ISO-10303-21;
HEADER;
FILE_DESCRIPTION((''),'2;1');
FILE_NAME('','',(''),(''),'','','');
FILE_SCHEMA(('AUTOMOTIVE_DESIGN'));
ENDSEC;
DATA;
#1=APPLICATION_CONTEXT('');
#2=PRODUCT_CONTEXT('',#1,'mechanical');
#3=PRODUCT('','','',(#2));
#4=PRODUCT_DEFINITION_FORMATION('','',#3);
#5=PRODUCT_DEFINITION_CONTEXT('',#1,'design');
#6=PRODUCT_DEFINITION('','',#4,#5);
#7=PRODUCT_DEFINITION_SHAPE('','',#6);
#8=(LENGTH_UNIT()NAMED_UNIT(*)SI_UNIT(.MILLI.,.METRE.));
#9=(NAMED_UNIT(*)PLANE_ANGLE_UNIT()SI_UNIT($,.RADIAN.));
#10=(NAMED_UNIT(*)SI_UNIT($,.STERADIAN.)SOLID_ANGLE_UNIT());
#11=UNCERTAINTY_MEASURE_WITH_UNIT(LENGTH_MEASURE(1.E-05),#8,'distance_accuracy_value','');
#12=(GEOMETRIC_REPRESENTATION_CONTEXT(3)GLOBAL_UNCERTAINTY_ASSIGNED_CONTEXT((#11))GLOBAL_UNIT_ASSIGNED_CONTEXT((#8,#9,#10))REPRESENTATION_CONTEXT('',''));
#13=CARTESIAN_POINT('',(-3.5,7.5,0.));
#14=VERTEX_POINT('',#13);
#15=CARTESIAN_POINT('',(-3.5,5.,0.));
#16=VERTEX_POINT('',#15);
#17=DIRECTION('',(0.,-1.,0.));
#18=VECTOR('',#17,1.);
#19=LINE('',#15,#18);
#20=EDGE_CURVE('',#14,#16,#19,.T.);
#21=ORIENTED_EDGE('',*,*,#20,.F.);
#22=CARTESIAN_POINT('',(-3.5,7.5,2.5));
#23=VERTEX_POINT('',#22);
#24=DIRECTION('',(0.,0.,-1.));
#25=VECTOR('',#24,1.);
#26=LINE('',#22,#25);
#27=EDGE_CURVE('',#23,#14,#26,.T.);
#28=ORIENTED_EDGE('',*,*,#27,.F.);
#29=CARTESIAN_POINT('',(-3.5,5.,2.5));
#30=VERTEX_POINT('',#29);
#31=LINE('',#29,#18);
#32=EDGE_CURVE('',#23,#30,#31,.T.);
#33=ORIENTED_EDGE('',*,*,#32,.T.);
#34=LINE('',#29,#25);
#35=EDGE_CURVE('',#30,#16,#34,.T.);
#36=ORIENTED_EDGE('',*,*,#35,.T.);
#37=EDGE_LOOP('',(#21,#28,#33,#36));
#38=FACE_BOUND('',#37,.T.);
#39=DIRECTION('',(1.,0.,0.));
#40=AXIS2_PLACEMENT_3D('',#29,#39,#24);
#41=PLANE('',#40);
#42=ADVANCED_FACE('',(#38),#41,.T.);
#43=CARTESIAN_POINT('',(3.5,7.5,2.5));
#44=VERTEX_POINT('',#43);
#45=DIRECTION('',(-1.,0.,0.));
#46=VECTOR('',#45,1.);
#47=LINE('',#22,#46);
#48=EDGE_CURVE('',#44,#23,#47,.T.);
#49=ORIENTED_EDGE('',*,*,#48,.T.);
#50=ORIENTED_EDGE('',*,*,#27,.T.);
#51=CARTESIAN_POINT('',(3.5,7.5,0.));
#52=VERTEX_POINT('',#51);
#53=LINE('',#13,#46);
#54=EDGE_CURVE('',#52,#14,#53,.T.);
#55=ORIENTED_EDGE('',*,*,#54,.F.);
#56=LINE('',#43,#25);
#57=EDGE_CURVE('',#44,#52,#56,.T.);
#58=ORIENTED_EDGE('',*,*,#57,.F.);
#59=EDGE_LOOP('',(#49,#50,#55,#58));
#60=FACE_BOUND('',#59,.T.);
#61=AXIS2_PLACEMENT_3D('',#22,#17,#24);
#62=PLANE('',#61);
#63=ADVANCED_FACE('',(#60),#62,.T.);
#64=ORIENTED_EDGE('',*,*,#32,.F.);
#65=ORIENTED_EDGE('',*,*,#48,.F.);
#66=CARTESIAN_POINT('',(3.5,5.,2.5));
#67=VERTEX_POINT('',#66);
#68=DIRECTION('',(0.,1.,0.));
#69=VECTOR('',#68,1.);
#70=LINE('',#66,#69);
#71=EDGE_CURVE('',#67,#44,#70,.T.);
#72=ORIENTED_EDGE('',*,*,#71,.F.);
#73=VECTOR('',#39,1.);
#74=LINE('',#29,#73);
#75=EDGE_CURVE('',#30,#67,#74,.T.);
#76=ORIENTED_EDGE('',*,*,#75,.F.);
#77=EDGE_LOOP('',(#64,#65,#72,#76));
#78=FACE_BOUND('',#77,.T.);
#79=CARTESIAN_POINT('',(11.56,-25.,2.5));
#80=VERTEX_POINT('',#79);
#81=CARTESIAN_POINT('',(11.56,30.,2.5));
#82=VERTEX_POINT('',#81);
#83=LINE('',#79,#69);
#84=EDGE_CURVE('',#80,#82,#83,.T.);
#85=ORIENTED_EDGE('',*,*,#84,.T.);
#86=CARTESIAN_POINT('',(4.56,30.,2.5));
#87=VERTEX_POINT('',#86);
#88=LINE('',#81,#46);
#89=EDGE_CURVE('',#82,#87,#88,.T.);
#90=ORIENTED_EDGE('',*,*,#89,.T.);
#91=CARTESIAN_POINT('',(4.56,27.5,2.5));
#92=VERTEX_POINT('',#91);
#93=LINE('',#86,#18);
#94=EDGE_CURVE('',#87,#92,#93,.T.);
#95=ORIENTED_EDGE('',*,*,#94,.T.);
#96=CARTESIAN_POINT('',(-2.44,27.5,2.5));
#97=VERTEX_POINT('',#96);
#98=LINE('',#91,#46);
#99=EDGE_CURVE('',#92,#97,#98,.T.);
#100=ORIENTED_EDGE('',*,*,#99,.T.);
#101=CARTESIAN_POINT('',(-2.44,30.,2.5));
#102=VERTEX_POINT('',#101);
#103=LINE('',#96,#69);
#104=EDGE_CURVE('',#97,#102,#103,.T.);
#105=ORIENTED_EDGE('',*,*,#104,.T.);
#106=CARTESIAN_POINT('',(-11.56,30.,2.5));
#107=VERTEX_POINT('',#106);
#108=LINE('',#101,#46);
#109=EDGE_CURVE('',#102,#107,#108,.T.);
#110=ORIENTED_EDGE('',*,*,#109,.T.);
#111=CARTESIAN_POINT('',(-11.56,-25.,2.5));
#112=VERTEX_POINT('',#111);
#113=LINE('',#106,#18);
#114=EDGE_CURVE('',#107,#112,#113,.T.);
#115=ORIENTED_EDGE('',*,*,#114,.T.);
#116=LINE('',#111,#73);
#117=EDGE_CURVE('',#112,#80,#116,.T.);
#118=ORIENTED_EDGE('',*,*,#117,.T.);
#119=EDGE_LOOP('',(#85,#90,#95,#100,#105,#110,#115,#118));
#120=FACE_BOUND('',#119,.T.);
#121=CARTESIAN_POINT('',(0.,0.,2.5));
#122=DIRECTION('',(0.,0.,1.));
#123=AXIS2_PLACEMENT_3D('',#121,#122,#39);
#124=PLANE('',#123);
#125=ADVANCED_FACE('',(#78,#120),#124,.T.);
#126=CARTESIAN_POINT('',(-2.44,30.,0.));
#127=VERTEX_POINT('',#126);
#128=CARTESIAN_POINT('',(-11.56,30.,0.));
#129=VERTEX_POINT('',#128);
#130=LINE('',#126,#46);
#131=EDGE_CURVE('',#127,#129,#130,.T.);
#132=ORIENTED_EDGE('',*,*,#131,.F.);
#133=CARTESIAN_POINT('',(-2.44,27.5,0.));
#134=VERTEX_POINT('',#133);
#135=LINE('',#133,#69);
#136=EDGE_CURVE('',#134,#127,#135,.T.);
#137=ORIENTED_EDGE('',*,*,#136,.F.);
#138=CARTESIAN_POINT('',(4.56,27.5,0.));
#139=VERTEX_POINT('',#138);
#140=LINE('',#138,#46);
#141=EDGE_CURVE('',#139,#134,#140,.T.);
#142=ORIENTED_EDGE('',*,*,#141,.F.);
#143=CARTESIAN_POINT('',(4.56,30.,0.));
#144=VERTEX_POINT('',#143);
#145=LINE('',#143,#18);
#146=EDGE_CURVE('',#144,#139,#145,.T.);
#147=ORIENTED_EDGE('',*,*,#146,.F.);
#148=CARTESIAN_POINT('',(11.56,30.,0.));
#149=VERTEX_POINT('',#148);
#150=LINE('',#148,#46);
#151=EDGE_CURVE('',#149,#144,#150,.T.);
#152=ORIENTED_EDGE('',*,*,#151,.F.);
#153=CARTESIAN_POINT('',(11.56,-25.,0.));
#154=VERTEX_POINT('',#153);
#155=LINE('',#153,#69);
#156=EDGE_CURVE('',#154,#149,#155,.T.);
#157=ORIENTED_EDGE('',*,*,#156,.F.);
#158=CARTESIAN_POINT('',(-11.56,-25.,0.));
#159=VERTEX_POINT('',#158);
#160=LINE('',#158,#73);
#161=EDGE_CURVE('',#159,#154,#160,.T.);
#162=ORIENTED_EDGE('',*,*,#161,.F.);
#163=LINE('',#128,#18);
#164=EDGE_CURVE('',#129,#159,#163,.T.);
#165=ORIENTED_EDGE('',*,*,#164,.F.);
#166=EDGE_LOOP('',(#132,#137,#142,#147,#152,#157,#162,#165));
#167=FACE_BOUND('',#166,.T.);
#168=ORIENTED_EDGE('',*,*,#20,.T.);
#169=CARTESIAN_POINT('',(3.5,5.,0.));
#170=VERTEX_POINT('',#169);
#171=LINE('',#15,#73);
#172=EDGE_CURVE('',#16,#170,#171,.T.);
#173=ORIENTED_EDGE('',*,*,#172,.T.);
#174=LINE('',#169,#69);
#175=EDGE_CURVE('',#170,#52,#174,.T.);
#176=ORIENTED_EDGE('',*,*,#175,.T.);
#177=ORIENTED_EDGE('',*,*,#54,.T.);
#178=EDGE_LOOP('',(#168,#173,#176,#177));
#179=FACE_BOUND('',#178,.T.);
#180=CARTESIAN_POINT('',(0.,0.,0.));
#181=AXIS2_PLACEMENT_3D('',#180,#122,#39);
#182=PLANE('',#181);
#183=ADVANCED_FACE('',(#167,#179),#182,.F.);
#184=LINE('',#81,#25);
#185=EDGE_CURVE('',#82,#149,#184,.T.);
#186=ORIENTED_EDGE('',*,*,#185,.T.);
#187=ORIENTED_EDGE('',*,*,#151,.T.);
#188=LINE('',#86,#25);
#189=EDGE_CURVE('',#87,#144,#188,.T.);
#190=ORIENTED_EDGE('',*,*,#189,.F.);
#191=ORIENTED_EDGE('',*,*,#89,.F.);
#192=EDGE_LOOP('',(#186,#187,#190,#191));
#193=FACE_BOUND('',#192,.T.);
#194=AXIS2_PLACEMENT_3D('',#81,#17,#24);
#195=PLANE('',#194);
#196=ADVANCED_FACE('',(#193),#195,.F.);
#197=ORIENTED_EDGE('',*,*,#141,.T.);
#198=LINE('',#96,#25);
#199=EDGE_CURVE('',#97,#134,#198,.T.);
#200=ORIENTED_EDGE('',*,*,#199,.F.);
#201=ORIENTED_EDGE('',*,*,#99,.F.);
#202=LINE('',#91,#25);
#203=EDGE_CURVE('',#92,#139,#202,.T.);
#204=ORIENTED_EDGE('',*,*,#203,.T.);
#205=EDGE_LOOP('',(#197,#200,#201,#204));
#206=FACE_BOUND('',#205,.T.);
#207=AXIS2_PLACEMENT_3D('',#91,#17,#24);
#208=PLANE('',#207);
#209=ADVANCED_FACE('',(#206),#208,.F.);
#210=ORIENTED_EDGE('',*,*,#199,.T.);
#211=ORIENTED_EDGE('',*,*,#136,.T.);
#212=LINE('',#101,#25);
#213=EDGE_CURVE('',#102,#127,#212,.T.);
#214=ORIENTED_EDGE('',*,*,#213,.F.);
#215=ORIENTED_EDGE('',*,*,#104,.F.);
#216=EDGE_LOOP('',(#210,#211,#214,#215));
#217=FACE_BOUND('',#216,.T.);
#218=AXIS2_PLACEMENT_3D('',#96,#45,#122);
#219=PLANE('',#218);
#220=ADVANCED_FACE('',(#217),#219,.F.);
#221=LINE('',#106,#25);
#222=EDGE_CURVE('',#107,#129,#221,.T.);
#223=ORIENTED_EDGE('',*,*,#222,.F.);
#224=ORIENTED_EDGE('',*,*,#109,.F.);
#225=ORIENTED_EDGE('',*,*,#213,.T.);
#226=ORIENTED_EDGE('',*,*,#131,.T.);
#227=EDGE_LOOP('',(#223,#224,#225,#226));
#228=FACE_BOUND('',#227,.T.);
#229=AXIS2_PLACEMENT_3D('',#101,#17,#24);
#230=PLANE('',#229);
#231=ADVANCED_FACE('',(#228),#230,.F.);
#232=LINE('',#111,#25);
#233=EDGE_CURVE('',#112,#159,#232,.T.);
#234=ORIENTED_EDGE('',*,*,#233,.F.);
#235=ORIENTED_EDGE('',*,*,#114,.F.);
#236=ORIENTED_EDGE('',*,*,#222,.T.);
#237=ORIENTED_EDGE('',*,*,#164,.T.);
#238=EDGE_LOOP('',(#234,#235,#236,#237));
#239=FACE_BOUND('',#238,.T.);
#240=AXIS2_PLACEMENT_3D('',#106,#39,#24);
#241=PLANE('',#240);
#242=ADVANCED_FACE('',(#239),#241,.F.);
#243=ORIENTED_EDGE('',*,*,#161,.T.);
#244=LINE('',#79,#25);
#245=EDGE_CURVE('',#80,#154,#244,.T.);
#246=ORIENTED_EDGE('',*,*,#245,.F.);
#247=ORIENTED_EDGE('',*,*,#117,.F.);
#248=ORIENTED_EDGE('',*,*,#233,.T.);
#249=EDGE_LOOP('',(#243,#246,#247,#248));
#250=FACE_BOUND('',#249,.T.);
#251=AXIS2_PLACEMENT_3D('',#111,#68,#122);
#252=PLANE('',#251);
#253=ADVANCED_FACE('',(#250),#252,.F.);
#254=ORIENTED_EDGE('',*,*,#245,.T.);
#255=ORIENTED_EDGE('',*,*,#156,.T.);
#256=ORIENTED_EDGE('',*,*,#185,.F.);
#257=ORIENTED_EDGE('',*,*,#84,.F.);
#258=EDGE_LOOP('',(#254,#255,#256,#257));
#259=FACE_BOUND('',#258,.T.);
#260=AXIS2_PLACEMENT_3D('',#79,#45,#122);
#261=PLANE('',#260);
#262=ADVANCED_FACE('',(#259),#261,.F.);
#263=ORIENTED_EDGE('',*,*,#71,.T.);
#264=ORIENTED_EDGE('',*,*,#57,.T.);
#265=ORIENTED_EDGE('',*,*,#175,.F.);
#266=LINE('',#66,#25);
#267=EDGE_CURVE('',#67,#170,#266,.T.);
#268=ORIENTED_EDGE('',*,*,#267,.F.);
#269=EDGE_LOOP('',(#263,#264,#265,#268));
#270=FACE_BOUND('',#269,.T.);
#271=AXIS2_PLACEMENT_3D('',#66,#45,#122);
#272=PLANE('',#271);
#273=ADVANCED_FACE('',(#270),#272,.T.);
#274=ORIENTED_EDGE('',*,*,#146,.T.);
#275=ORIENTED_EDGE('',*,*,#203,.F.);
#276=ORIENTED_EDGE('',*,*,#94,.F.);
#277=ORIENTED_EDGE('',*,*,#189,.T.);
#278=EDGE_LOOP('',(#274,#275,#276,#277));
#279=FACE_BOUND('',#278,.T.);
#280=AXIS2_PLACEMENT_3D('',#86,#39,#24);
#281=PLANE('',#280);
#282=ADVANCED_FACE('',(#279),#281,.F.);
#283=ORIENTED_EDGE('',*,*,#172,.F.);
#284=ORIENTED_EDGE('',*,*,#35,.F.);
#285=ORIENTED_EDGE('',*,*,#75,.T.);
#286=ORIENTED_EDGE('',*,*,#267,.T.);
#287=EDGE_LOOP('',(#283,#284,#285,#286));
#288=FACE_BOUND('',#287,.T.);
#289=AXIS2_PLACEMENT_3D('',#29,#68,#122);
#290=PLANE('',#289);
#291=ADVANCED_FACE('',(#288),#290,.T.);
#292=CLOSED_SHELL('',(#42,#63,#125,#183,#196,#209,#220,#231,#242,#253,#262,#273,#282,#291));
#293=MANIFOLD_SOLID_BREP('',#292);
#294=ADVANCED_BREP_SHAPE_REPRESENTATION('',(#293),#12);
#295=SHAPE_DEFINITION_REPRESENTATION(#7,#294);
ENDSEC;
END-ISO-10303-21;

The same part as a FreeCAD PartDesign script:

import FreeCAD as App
import Part
import Sketcher
Q = App.Units.Quantity

doc = App.newDocument("Part")
params = doc.addObject("Spreadsheet::Sheet", "Params")
for row, (alias, value) in enumerate([
    ("sketch1_width", "7 mm"),
    ("sketch1_height", "55 mm"),
    ("sketch1_height2", "2.5 mm"),
    ("sketch1_width2", "9.12 mm"),
    ("pad1_length", "2.5 mm"),
], start=1):
    params.set(f"A{row}", alias)
    params.set(f"B{row}", "=" + value)
    params.setAlias(f"B{row}", alias)

body = doc.addObject("PartDesign::Body", "Body")

# Sketch on XY plane
sketch1 = body.newObject("Sketcher::SketchObject", "Sketch")
sketch1.AttachmentSupport = (doc.getObject("XY_Plane"), [""])
sketch1.MapMode = "FlatFace"
sketch1.addGeometry(Part.LineSegment(App.Vector(11.56, 30, 0), App.Vector(4.56, 30, 0)), False)
sketch1.addGeometry(Part.LineSegment(App.Vector(4.56, 30, 0), App.Vector(4.56, 27.5, 0)), False)
sketch1.addGeometry(Part.LineSegment(App.Vector(4.56, 27.5, 0), App.Vector(-2.44, 27.5, 0)), False)
sketch1.addGeometry(Part.LineSegment(App.Vector(-2.44, 27.5, 0), App.Vector(-2.44, 30, 0)), False)
sketch1.addGeometry(Part.LineSegment(App.Vector(-2.44, 30, 0), App.Vector(-11.56, 30, 0)), False)
sketch1.addGeometry(Part.LineSegment(App.Vector(-11.56, 30, 0), App.Vector(-11.56, -25, 0)), False)
sketch1.addGeometry(Part.LineSegment(App.Vector(-11.56, -25, 0), App.Vector(11.56, -25, 0)), False)
sketch1.addGeometry(Part.LineSegment(App.Vector(11.56, -25, 0), App.Vector(11.56, 30, 0)), False)
sketch1.addGeometry(Part.LineSegment(App.Vector(3.5, 5, 0), App.Vector(-3.5, 5, 0)), False)
sketch1.addGeometry(Part.LineSegment(App.Vector(-3.5, 5, 0), App.Vector(-3.5, 7.5, 0)), False)
sketch1.addGeometry(Part.LineSegment(App.Vector(-3.5, 7.5, 0), App.Vector(3.5, 7.5, 0)), False)
sketch1.addGeometry(Part.LineSegment(App.Vector(3.5, 7.5, 0), App.Vector(3.5, 5, 0)), False)
sketch1.addConstraint(Sketcher.Constraint("Coincident", 0, 2, 1, 1))
sketch1.addConstraint(Sketcher.Constraint("Coincident", 1, 2, 2, 1))
sketch1.addConstraint(Sketcher.Constraint("Coincident", 2, 2, 3, 1))
sketch1.addConstraint(Sketcher.Constraint("Coincident", 3, 2, 4, 1))
sketch1.addConstraint(Sketcher.Constraint("Coincident", 4, 2, 5, 1))
sketch1.addConstraint(Sketcher.Constraint("Coincident", 5, 2, 6, 1))
sketch1.addConstraint(Sketcher.Constraint("Coincident", 6, 2, 7, 1))
sketch1.addConstraint(Sketcher.Constraint("Coincident", 7, 2, 0, 1))
sketch1.addConstraint(Sketcher.Constraint("Coincident", 8, 2, 9, 1))
sketch1.addConstraint(Sketcher.Constraint("Coincident", 9, 2, 10, 1))
sketch1.addConstraint(Sketcher.Constraint("Coincident", 10, 2, 11, 1))
sketch1.addConstraint(Sketcher.Constraint("Coincident", 11, 2, 8, 1))
sketch1.addConstraint(Sketcher.Constraint("Horizontal", 0))
sketch1.addConstraint(Sketcher.Constraint("Vertical", 1))
sketch1.addConstraint(Sketcher.Constraint("Horizontal", 2))
sketch1.addConstraint(Sketcher.Constraint("Vertical", 3))
sketch1.addConstraint(Sketcher.Constraint("Horizontal", 4))
sketch1.addConstraint(Sketcher.Constraint("Vertical", 5))
sketch1.addConstraint(Sketcher.Constraint("Horizontal", 6))
sketch1.addConstraint(Sketcher.Constraint("Vertical", 7))
sketch1.addConstraint(Sketcher.Constraint("Horizontal", 8))
sketch1.addConstraint(Sketcher.Constraint("Vertical", 9))
sketch1.addConstraint(Sketcher.Constraint("Horizontal", 10))
sketch1.addConstraint(Sketcher.Constraint("Vertical", 11))
sketch1.addConstraint(Sketcher.Constraint("Symmetric", 4, 2, 7, 2, -2))
sketch1.addConstraint(Sketcher.Constraint("Equal", 0, 2))
sketch1.addConstraint(Sketcher.Constraint("Equal", 2, 8))
sketch1.addConstraint(Sketcher.Constraint("Equal", 3, 9))
sketch1.addConstraint(Sketcher.Constraint("DistanceX", 0, 2, 0, 1, Q("7 mm")))
sketch1.addConstraint(Sketcher.Constraint("DistanceY", 5, 2, 5, 1, Q("55 mm")))
sketch1.addConstraint(Sketcher.Constraint("DistanceY", 1, 2, 1, 1, Q("2.5 mm")))
sketch1.addConstraint(Sketcher.Constraint("DistanceY", -1, 1, 0, 2, Q("30 mm")))
sketch1.addConstraint(Sketcher.Constraint("DistanceY", -1, 1, 8, 2, Q("5 mm")))
sketch1.addConstraint(Sketcher.Constraint("DistanceX", 4, 2, 4, 1, Q("9.12 mm")))
sketch1.addConstraint(Sketcher.Constraint("DistanceX", 8, 2, -1, 1, Q("3.5 mm")))
sketch1.setExpression("Constraints[28]", "Params.sketch1_width")
sketch1.setExpression("Constraints[29]", "Params.sketch1_height")
sketch1.setExpression("Constraints[30]", "Params.sketch1_height2")
sketch1.setExpression("Constraints[33]", "Params.sketch1_width2")
pad1 = body.newObject("PartDesign::Pad", "Pad")
pad1.Profile = sketch1
pad1.setExpression("Length", "Params.pad1_length")

doc.recompute()
